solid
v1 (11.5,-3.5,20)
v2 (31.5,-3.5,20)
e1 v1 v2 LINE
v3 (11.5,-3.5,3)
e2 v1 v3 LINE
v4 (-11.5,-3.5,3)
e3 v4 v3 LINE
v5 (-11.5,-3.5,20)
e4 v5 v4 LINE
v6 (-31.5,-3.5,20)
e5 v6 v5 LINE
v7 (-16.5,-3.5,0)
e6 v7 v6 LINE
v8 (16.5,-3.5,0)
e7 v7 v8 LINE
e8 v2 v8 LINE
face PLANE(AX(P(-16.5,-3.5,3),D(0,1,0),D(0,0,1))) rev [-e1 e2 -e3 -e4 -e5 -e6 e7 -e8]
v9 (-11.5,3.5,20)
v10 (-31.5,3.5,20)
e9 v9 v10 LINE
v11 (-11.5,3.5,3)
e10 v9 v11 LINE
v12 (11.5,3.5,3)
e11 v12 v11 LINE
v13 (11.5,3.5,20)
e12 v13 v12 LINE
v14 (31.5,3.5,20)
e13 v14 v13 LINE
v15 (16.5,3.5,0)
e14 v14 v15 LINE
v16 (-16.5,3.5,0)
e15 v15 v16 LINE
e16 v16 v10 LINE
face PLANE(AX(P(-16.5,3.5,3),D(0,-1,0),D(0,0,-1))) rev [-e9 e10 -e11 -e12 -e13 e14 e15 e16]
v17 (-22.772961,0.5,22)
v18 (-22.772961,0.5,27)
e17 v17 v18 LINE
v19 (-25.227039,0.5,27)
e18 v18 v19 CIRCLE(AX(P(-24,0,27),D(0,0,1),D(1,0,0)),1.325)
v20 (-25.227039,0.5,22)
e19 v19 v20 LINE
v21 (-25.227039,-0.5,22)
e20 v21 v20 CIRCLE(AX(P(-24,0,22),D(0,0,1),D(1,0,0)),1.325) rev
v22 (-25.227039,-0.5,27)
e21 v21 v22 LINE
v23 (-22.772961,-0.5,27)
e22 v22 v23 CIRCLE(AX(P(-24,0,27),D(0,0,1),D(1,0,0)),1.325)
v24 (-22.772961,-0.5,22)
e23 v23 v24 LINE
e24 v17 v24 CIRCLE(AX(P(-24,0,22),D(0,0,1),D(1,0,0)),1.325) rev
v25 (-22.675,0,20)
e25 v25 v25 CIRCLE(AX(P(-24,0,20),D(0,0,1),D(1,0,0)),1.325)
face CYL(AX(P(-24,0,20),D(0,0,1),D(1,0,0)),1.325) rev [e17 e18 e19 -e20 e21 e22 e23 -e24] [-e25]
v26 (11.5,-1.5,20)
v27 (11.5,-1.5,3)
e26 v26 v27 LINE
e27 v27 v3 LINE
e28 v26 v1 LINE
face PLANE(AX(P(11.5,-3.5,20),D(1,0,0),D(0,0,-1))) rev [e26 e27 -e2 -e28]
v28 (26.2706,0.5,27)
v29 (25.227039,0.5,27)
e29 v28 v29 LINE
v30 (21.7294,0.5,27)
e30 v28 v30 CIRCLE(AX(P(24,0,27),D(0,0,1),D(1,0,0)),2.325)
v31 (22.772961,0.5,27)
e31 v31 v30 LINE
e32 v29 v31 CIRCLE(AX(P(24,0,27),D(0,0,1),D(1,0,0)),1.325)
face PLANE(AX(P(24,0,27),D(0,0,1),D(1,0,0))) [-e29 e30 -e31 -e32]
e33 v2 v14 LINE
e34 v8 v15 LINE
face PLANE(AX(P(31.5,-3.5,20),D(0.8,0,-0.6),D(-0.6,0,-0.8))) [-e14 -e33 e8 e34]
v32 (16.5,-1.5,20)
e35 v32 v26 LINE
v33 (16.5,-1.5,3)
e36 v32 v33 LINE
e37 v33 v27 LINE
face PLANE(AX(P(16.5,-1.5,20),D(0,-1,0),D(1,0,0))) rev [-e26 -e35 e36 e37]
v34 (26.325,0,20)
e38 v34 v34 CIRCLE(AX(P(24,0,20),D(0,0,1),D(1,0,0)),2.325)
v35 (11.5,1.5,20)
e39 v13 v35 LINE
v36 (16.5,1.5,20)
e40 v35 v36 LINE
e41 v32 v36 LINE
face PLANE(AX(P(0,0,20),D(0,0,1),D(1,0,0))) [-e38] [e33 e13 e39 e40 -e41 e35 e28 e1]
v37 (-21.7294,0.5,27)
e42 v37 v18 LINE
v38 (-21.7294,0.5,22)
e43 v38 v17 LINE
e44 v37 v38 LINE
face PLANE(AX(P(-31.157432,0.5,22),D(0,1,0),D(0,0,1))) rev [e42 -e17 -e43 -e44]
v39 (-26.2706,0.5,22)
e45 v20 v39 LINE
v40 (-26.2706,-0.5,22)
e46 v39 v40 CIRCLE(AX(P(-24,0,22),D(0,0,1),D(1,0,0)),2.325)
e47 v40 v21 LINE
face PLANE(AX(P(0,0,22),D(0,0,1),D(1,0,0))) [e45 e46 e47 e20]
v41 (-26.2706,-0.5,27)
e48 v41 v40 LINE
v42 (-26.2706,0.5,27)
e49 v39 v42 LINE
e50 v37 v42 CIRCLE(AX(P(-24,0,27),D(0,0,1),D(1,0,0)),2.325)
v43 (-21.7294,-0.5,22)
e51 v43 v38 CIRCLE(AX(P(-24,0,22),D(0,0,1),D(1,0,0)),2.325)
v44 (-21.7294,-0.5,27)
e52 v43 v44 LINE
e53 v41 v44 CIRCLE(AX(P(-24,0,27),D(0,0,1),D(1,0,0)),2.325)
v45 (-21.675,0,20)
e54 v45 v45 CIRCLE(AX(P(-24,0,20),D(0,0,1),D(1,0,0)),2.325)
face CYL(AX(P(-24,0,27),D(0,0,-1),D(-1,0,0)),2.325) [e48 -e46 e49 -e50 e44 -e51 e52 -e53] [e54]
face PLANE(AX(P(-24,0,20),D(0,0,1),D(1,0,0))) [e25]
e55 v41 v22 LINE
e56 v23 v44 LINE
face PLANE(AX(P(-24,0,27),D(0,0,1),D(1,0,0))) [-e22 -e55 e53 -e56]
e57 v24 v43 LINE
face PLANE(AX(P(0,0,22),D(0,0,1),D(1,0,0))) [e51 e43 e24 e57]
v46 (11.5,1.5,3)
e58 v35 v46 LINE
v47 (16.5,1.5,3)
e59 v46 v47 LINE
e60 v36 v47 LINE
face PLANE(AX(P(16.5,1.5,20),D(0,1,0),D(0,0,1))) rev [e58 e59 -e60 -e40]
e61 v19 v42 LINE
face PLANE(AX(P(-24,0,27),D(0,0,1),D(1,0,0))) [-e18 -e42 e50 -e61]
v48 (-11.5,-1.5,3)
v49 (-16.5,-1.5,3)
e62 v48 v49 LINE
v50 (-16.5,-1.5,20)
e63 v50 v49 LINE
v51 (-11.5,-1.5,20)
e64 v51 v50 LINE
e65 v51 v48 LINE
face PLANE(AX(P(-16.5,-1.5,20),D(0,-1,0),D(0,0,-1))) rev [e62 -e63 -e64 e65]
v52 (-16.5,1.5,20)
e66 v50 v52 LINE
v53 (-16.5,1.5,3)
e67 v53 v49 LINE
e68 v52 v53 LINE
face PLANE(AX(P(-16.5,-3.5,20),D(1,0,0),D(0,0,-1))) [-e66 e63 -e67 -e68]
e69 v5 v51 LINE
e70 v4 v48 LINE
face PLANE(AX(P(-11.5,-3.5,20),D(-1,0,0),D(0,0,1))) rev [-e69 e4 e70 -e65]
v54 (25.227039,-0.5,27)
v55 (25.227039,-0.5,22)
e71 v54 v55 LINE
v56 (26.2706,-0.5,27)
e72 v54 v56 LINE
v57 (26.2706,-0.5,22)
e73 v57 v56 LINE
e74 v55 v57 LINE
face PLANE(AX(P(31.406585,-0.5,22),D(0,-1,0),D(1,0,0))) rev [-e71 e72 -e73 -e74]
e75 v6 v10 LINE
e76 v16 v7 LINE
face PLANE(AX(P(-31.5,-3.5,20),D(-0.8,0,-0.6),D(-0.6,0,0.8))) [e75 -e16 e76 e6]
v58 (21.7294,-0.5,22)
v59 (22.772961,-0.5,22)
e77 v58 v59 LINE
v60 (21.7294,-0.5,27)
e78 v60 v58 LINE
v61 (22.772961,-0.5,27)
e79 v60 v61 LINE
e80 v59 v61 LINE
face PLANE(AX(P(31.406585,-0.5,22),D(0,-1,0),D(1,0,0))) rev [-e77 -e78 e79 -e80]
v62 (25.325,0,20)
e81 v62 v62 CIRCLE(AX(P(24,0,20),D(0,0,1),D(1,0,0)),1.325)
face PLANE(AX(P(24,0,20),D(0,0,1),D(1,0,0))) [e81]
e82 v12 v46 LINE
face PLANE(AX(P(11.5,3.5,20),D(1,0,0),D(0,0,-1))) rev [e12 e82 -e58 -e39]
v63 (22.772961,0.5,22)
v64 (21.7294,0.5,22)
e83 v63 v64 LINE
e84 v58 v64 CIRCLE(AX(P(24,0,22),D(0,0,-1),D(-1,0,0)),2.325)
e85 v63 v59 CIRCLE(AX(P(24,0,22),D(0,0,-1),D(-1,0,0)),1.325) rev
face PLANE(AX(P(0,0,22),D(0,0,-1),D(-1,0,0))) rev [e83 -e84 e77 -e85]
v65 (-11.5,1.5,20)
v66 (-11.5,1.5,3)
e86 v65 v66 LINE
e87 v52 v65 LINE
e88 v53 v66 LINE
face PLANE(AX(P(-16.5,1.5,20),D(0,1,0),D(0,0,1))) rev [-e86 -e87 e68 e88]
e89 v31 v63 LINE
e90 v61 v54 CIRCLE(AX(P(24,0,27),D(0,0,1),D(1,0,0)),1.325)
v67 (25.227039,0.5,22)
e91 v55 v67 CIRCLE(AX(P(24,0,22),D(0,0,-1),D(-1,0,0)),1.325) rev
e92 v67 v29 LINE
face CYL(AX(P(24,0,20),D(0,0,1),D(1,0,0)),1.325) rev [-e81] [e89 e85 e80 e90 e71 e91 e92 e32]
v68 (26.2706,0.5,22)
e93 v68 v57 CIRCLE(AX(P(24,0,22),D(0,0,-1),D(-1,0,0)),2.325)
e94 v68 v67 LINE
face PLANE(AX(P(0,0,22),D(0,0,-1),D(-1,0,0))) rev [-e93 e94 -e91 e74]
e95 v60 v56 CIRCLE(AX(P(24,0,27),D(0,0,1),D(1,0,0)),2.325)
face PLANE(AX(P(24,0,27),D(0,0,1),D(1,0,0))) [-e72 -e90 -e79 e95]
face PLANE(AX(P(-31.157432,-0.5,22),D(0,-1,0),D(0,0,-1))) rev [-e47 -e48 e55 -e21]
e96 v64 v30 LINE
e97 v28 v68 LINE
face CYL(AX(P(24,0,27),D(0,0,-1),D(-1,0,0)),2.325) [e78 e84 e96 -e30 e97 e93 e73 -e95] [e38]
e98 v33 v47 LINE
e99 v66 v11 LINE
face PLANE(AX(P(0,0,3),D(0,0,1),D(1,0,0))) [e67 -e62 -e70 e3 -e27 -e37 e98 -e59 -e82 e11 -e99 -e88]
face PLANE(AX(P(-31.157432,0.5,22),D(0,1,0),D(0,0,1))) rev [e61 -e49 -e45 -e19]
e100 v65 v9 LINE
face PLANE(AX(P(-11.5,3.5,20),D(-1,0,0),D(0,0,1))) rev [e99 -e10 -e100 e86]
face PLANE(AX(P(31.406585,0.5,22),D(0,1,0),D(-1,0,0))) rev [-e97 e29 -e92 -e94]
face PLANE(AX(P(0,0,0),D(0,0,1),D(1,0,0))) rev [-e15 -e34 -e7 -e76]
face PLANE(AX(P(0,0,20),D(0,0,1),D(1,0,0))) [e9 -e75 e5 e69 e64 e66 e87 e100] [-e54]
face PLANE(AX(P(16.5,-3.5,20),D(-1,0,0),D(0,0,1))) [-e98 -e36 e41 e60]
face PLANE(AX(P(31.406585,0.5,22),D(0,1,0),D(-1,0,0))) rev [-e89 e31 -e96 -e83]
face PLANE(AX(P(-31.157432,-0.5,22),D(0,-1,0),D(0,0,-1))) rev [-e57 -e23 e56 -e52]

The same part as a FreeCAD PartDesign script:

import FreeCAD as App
import Part
import Sketcher

V = App.Vector
Q = App.Units.Quantity


def add_polygon(sketch, points):
    """Adds a closed chain of lines whose ends are joined by coincident constraints."""
    first, n = sketch.GeometryCount, len(points)
    for a, b in zip(points, points[1:] + points[:1]):
        sketch.addGeometry(Part.LineSegment(App.Vector(*a, 0), App.Vector(*b, 0)), False)
    for i in range(n):
        sketch.addConstraint(Sketcher.Constraint("Coincident", first + i, 2, first + (i + 1) % n, 1))

doc = App.newDocument("Part")
params = doc.addObject("Spreadsheet::Sheet", "Params")
for row, (alias, value) in enumerate([
    ("sketch1_width", "33 mm"),
    ("sketch1_height", "7 mm"),
    ("pad1_length", "3 mm"),
    ("sketch2_width", "5 mm"),
    ("sketch2_height", "2 mm"),
    ("pad2_length", "17 mm"),
    ("sketch3_width", "15 mm"),
    ("sketch3_height", "20 mm"),
    ("pad3_length", "7 mm"),
    ("sketch4_diameter", "4.65 mm"),
    ("pad4_length", "7 mm"),
    ("sketch5_diameter", "2.65 mm"),
    ("pocket1_length", "7 mm"),
    ("sketch6_height", "1 mm"),
    ("pocket2_length", "5 mm"),
], start=1):
    params.set(f"A{row}", alias)
    params.set(f"B{row}", "=" + value)
    params.setAlias(f"B{row}", alias)

body = doc.addObject("PartDesign::Body", "Body")

sketch1 = body.newObject("Sketcher::SketchObject", "Sketch")
sketch1.AttachmentSupport = (doc.getObject("XY_Plane"), [""])
sketch1.MapMode = "FlatFace"
add_polygon(sketch1, [(-16, 4), (-16, -4), (16, -4), (16, 4)])
sketch1.addConstraint([
    Sketcher.Constraint("Vertical", 0),
    Sketcher.Constraint("Horizontal", 1),
    Sketcher.Constraint("Vertical", 2),
    Sketcher.Constraint("Horizontal", 3),
    Sketcher.Constraint("Symmetric", 0, 2, 2, 2, -1, 1),
    Sketcher.Constraint("DistanceX", 1, 1, 1, 2, Q("33 mm")),
    Sketcher.Constraint("DistanceY", 0, 2, 0, 1, Q("7 mm")),
])
sketch1.setExpression("Constraints[9]", "Params.sketch1_width")
sketch1.setExpression("Constraints[10]", "Params.sketch1_height")
pad1 = body.newObject("PartDesign::Pad", "Pad")
pad1.Profile = sketch1
pad1.setExpression("Length", "Params.pad1_length")

sketch2 = body.newObject("Sketcher::SketchObject", "Sketch001")
sketch2.AttachmentSupport = (doc.getObject("XY_Plane"), [""])
sketch2.MapMode = "FlatFace"
sketch2.AttachmentOffset = App.Placement(V(0, 0, 3), App.Rotation())
add_polygon(sketch2, [(-16.5, 3.5), (-16.5, 1.5), (-11.5, 1.5), (-11.5, 3.5)])
add_polygon(sketch2, [(-16.5, -1.5), (-16.5, -3.5), (-11.5, -3.5), (-11.5, -1.5)])
add_polygon(sketch2, [(11.5, -1.5), (11.5, -3.5), (16.5, -3.5), (16.5, -1.5)])
add_polygon(sketch2, [(11.5, 3.5), (11.5, 1.5), (16.5, 1.5), (16.5, 3.5)])
sketch2.addConstraint([
    Sketcher.Constraint("Vertical", 0),
    Sketcher.Constraint("Horizontal", 1),
    Sketcher.Constraint("Vertical", 2),
    Sketcher.Constraint("Horizontal", 3),
    Sketcher.Constraint("Vertical", 4),
    Sketcher.Constraint("Horizontal", 5),
    Sketcher.Constraint("Vertical", 6),
    Sketcher.Constraint("Horizontal", 7),
    Sketcher.Constraint("Vertical", 8),
    Sketcher.Constraint("Horizontal", 9),
    Sketcher.Constraint("Vertical", 10),
    Sketcher.Constraint("Horizontal", 11),
    Sketcher.Constraint("Vertical", 12),
    Sketcher.Constraint("Horizontal", 13),
    Sketcher.Constraint("Vertical", 14),
    Sketcher.Constraint("Horizontal", 15),
    Sketcher.Constraint("Symmetric", 2, 2, 8, 2, -1, 1),
    Sketcher.Constraint("Symmetric", 0, 2, 10, 2, -1, 1),
    Sketcher.Constraint("Symmetric", 6, 2, 12, 2, -1, 1),
    Sketcher.Constraint("Symmetric", 4, 2, 14, 2, -1, 1),
    Sketcher.Constraint("Symmetric", 5, 2, 8, 2, -2),
    Sketcher.Constraint("Symmetric", 7, 2, 10, 2, -2),
    Sketcher.Constraint("DistanceX", 1, 1, 1, 2, Q("5 mm")),
    Sketcher.Constraint("DistanceY", 0, 2, 0, 1, Q("2 mm")),
    Sketcher.Constraint("DistanceY", 4, 2, 0, 2, Q("5 mm")),
    Sketcher.Constraint("DistanceX", 5, 2, 8, 2, Q("23 mm")),
])
sketch2.setExpression("Constraints[38]", "Params.sketch2_width")
sketch2.setExpression("Constraints[39]", "Params.sketch2_height")
pad2 = body.newObject("PartDesign::Pad", "Pad001")
pad2.Profile = sketch2
pad2.setExpression("Length", "Params.pad2_length")

sketch3 = body.newObject("Sketcher::SketchObject", "Sketch002")
sketch3.AttachmentSupport = (doc.getObject("XZ_Plane"), [""])
sketch3.MapMode = "FlatFace"
sketch3.AttachmentOffset = App.Placement(V(0, 0, -3.5), App.Rotation())
add_polygon(sketch3, [(-32, 20), (-16, 20), (-16, 0)])
add_polygon(sketch3, [(16, 20), (32, 20), (16, 0)])
sketch3.addConstraint([
    Sketcher.Constraint("Horizontal", 0),
    Sketcher.Constraint("Vertical", 1),
    Sketcher.Constraint("Horizontal", 3),
    Sketcher.Constraint("Vertical", 5),
    Sketcher.Constraint("Symmetric", 1, 2, 4, 2, -1, 1),
    Sketcher.Constraint("Symmetric", 2, 2, 3, 2, -2),
    Sketcher.Constraint("PointOnObject", 1, 2, -1),
    Sketcher.Constraint("DistanceX", 0, 1, 0, 2, Q("15 mm")),
    Sketcher.Constraint("DistanceY", 1, 2, 1, 1, Q("20 mm")),
    Sketcher.Constraint("DistanceX", 0, 2, 3, 2, Q("48 mm")),
])
sketch3.setExpression("Constraints[13]", "Params.sketch3_width")
sketch3.setExpression("Constraints[14]", "Params.sketch3_height")
pad3 = body.newObject("PartDesign::Pad", "Pad002")
pad3.Profile = sketch3
pad3.setExpression("Length", "Params.pad3_length")

sketch4 = body.newObject("Sketcher::SketchObject", "Sketch003")
sketch4.AttachmentSupport = (doc.getObject("XY_Plane"), [""])
sketch4.MapMode = "FlatFace"
sketch4.AttachmentOffset = App.Placement(V(0, 0, 20), App.Rotation())
sketch4.addGeometry([
    Part.Circle(V(24, 0, 0), V(0, 0, 1), 2.3),
    Part.Circle(V(-24, 0, 0), V(0, 0, 1), 2.3),
], False)
sketch4.addConstraint([
    Sketcher.Constraint("Equal", 0, 1),
    Sketcher.Constraint("Symmetric", 0, 3, 1, 3, -1, 1),
    Sketcher.Constraint("PointOnObject", 0, 3, -1),
    Sketcher.Constraint("Diameter", 0, Q("4.65 mm")),
    Sketcher.Constraint("DistanceX", -1, 1, 0, 3, Q("24 mm")),
])
sketch4.setExpression("Constraints[3]", "Params.sketch4_diameter")
pad4 = body.newObject("PartDesign::Pad", "Pad003")
pad4.Profile = sketch4
pad4.setExpression("Length", "Params.pad4_length")

sketch5 = body.newObject("Sketcher::SketchObject", "Sketch004")
sketch5.AttachmentSupport = (doc.getObject("XY_Plane"), [""])
sketch5.MapMode = "FlatFace"
sketch5.AttachmentOffset = App.Placement(V(0, 0, 27), App.Rotation())
sketch5.addGeometry([
    Part.Circle(V(-24, 0, 0), V(0, 0, 1), 1.3),
    Part.Circle(V(24, 0, 0), V(0, 0, 1), 1.3),
], False)
sketch5.addConstraint([
    Sketcher.Constraint("Equal", 0, 1),
    Sketcher.Constraint("Symmetric", 0, 3, 1, 3, -1, 1),
    Sketcher.Constraint("PointOnObject", 0, 3, -1),
    Sketcher.Constraint("Diameter", 0, Q("2.65 mm")),
    Sketcher.Constraint("DistanceX", 0, 3, -1, 1, Q("24 mm")),
])
sketch5.setExpression("Constraints[3]", "Params.sketch5_diameter")
pocket1 = body.newObject("PartDesign::Pocket", "Pocket")
pocket1.Profile = sketch5
pocket1.setExpression("Length", "Params.pocket1_length")

sketch6 = body.newObject("Sketcher::SketchObject", "Sketch005")
sketch6.AttachmentSupport = (doc.getObject("XY_Plane"), [""])
sketch6.MapMode = "FlatFace"
sketch6.AttachmentOffset = App.Placement(V(0, 0, 27), App.Rotation())
add_polygon(sketch6, [(-31.2, 0.5), (-31.2, -0.5), (-21.5, -0.5), (-21.5, 0.5)])
add_polygon(sketch6, [(21.2, 0.5), (21.2, -0.5), (31.4, -0.5), (31.4, 0.5)])
sketch6.addConstraint([
    Sketcher.Constraint("Vertical", 0),
    Sketcher.Constraint("Horizontal", 1),
    Sketcher.Constraint("Vertical", 2),
    Sketcher.Constraint("Horizontal", 3),
    Sketcher.Constraint("Vertical", 4),
    Sketcher.Constraint("Horizontal", 5),
    Sketcher.Constraint("Vertical", 6),
    Sketcher.Constraint("Horizontal", 7),
    Sketcher.Constraint("Horizontal", 1, 2, 4, 2),
    Sketcher.Constraint("Horizontal", 3, 2, 6, 2),
    Sketcher.Constraint("DistanceY", 0, 2, 0, 1, Q("1 mm")),
    Sketcher.Constraint("DistanceY", 0, 2, -1, 1, Q("0.5 mm")),
    Sketcher.Constraint("DistanceX", 5, 1, 5, 2, Q("10.16317 mm")),
    Sketcher.Constraint("DistanceX", 1, 1, 1, 2, Q("9.664864 mm")),
    Sketcher.Constraint("DistanceX", 0, 2, -1, 1, Q("31.157432 mm")),
    Sketcher.Constraint("DistanceX", -1, 1, 4, 2, Q("21.243415 mm")),
])
sketch6.setExpression("Constraints[18]", "Params.sketch6_height")
pocket2 = body.newObject("PartDesign::Pocket", "Pocket001")
pocket2.Profile = sketch6
pocket2.setExpression("Length", "Params.pocket2_length")

doc.recompute()
